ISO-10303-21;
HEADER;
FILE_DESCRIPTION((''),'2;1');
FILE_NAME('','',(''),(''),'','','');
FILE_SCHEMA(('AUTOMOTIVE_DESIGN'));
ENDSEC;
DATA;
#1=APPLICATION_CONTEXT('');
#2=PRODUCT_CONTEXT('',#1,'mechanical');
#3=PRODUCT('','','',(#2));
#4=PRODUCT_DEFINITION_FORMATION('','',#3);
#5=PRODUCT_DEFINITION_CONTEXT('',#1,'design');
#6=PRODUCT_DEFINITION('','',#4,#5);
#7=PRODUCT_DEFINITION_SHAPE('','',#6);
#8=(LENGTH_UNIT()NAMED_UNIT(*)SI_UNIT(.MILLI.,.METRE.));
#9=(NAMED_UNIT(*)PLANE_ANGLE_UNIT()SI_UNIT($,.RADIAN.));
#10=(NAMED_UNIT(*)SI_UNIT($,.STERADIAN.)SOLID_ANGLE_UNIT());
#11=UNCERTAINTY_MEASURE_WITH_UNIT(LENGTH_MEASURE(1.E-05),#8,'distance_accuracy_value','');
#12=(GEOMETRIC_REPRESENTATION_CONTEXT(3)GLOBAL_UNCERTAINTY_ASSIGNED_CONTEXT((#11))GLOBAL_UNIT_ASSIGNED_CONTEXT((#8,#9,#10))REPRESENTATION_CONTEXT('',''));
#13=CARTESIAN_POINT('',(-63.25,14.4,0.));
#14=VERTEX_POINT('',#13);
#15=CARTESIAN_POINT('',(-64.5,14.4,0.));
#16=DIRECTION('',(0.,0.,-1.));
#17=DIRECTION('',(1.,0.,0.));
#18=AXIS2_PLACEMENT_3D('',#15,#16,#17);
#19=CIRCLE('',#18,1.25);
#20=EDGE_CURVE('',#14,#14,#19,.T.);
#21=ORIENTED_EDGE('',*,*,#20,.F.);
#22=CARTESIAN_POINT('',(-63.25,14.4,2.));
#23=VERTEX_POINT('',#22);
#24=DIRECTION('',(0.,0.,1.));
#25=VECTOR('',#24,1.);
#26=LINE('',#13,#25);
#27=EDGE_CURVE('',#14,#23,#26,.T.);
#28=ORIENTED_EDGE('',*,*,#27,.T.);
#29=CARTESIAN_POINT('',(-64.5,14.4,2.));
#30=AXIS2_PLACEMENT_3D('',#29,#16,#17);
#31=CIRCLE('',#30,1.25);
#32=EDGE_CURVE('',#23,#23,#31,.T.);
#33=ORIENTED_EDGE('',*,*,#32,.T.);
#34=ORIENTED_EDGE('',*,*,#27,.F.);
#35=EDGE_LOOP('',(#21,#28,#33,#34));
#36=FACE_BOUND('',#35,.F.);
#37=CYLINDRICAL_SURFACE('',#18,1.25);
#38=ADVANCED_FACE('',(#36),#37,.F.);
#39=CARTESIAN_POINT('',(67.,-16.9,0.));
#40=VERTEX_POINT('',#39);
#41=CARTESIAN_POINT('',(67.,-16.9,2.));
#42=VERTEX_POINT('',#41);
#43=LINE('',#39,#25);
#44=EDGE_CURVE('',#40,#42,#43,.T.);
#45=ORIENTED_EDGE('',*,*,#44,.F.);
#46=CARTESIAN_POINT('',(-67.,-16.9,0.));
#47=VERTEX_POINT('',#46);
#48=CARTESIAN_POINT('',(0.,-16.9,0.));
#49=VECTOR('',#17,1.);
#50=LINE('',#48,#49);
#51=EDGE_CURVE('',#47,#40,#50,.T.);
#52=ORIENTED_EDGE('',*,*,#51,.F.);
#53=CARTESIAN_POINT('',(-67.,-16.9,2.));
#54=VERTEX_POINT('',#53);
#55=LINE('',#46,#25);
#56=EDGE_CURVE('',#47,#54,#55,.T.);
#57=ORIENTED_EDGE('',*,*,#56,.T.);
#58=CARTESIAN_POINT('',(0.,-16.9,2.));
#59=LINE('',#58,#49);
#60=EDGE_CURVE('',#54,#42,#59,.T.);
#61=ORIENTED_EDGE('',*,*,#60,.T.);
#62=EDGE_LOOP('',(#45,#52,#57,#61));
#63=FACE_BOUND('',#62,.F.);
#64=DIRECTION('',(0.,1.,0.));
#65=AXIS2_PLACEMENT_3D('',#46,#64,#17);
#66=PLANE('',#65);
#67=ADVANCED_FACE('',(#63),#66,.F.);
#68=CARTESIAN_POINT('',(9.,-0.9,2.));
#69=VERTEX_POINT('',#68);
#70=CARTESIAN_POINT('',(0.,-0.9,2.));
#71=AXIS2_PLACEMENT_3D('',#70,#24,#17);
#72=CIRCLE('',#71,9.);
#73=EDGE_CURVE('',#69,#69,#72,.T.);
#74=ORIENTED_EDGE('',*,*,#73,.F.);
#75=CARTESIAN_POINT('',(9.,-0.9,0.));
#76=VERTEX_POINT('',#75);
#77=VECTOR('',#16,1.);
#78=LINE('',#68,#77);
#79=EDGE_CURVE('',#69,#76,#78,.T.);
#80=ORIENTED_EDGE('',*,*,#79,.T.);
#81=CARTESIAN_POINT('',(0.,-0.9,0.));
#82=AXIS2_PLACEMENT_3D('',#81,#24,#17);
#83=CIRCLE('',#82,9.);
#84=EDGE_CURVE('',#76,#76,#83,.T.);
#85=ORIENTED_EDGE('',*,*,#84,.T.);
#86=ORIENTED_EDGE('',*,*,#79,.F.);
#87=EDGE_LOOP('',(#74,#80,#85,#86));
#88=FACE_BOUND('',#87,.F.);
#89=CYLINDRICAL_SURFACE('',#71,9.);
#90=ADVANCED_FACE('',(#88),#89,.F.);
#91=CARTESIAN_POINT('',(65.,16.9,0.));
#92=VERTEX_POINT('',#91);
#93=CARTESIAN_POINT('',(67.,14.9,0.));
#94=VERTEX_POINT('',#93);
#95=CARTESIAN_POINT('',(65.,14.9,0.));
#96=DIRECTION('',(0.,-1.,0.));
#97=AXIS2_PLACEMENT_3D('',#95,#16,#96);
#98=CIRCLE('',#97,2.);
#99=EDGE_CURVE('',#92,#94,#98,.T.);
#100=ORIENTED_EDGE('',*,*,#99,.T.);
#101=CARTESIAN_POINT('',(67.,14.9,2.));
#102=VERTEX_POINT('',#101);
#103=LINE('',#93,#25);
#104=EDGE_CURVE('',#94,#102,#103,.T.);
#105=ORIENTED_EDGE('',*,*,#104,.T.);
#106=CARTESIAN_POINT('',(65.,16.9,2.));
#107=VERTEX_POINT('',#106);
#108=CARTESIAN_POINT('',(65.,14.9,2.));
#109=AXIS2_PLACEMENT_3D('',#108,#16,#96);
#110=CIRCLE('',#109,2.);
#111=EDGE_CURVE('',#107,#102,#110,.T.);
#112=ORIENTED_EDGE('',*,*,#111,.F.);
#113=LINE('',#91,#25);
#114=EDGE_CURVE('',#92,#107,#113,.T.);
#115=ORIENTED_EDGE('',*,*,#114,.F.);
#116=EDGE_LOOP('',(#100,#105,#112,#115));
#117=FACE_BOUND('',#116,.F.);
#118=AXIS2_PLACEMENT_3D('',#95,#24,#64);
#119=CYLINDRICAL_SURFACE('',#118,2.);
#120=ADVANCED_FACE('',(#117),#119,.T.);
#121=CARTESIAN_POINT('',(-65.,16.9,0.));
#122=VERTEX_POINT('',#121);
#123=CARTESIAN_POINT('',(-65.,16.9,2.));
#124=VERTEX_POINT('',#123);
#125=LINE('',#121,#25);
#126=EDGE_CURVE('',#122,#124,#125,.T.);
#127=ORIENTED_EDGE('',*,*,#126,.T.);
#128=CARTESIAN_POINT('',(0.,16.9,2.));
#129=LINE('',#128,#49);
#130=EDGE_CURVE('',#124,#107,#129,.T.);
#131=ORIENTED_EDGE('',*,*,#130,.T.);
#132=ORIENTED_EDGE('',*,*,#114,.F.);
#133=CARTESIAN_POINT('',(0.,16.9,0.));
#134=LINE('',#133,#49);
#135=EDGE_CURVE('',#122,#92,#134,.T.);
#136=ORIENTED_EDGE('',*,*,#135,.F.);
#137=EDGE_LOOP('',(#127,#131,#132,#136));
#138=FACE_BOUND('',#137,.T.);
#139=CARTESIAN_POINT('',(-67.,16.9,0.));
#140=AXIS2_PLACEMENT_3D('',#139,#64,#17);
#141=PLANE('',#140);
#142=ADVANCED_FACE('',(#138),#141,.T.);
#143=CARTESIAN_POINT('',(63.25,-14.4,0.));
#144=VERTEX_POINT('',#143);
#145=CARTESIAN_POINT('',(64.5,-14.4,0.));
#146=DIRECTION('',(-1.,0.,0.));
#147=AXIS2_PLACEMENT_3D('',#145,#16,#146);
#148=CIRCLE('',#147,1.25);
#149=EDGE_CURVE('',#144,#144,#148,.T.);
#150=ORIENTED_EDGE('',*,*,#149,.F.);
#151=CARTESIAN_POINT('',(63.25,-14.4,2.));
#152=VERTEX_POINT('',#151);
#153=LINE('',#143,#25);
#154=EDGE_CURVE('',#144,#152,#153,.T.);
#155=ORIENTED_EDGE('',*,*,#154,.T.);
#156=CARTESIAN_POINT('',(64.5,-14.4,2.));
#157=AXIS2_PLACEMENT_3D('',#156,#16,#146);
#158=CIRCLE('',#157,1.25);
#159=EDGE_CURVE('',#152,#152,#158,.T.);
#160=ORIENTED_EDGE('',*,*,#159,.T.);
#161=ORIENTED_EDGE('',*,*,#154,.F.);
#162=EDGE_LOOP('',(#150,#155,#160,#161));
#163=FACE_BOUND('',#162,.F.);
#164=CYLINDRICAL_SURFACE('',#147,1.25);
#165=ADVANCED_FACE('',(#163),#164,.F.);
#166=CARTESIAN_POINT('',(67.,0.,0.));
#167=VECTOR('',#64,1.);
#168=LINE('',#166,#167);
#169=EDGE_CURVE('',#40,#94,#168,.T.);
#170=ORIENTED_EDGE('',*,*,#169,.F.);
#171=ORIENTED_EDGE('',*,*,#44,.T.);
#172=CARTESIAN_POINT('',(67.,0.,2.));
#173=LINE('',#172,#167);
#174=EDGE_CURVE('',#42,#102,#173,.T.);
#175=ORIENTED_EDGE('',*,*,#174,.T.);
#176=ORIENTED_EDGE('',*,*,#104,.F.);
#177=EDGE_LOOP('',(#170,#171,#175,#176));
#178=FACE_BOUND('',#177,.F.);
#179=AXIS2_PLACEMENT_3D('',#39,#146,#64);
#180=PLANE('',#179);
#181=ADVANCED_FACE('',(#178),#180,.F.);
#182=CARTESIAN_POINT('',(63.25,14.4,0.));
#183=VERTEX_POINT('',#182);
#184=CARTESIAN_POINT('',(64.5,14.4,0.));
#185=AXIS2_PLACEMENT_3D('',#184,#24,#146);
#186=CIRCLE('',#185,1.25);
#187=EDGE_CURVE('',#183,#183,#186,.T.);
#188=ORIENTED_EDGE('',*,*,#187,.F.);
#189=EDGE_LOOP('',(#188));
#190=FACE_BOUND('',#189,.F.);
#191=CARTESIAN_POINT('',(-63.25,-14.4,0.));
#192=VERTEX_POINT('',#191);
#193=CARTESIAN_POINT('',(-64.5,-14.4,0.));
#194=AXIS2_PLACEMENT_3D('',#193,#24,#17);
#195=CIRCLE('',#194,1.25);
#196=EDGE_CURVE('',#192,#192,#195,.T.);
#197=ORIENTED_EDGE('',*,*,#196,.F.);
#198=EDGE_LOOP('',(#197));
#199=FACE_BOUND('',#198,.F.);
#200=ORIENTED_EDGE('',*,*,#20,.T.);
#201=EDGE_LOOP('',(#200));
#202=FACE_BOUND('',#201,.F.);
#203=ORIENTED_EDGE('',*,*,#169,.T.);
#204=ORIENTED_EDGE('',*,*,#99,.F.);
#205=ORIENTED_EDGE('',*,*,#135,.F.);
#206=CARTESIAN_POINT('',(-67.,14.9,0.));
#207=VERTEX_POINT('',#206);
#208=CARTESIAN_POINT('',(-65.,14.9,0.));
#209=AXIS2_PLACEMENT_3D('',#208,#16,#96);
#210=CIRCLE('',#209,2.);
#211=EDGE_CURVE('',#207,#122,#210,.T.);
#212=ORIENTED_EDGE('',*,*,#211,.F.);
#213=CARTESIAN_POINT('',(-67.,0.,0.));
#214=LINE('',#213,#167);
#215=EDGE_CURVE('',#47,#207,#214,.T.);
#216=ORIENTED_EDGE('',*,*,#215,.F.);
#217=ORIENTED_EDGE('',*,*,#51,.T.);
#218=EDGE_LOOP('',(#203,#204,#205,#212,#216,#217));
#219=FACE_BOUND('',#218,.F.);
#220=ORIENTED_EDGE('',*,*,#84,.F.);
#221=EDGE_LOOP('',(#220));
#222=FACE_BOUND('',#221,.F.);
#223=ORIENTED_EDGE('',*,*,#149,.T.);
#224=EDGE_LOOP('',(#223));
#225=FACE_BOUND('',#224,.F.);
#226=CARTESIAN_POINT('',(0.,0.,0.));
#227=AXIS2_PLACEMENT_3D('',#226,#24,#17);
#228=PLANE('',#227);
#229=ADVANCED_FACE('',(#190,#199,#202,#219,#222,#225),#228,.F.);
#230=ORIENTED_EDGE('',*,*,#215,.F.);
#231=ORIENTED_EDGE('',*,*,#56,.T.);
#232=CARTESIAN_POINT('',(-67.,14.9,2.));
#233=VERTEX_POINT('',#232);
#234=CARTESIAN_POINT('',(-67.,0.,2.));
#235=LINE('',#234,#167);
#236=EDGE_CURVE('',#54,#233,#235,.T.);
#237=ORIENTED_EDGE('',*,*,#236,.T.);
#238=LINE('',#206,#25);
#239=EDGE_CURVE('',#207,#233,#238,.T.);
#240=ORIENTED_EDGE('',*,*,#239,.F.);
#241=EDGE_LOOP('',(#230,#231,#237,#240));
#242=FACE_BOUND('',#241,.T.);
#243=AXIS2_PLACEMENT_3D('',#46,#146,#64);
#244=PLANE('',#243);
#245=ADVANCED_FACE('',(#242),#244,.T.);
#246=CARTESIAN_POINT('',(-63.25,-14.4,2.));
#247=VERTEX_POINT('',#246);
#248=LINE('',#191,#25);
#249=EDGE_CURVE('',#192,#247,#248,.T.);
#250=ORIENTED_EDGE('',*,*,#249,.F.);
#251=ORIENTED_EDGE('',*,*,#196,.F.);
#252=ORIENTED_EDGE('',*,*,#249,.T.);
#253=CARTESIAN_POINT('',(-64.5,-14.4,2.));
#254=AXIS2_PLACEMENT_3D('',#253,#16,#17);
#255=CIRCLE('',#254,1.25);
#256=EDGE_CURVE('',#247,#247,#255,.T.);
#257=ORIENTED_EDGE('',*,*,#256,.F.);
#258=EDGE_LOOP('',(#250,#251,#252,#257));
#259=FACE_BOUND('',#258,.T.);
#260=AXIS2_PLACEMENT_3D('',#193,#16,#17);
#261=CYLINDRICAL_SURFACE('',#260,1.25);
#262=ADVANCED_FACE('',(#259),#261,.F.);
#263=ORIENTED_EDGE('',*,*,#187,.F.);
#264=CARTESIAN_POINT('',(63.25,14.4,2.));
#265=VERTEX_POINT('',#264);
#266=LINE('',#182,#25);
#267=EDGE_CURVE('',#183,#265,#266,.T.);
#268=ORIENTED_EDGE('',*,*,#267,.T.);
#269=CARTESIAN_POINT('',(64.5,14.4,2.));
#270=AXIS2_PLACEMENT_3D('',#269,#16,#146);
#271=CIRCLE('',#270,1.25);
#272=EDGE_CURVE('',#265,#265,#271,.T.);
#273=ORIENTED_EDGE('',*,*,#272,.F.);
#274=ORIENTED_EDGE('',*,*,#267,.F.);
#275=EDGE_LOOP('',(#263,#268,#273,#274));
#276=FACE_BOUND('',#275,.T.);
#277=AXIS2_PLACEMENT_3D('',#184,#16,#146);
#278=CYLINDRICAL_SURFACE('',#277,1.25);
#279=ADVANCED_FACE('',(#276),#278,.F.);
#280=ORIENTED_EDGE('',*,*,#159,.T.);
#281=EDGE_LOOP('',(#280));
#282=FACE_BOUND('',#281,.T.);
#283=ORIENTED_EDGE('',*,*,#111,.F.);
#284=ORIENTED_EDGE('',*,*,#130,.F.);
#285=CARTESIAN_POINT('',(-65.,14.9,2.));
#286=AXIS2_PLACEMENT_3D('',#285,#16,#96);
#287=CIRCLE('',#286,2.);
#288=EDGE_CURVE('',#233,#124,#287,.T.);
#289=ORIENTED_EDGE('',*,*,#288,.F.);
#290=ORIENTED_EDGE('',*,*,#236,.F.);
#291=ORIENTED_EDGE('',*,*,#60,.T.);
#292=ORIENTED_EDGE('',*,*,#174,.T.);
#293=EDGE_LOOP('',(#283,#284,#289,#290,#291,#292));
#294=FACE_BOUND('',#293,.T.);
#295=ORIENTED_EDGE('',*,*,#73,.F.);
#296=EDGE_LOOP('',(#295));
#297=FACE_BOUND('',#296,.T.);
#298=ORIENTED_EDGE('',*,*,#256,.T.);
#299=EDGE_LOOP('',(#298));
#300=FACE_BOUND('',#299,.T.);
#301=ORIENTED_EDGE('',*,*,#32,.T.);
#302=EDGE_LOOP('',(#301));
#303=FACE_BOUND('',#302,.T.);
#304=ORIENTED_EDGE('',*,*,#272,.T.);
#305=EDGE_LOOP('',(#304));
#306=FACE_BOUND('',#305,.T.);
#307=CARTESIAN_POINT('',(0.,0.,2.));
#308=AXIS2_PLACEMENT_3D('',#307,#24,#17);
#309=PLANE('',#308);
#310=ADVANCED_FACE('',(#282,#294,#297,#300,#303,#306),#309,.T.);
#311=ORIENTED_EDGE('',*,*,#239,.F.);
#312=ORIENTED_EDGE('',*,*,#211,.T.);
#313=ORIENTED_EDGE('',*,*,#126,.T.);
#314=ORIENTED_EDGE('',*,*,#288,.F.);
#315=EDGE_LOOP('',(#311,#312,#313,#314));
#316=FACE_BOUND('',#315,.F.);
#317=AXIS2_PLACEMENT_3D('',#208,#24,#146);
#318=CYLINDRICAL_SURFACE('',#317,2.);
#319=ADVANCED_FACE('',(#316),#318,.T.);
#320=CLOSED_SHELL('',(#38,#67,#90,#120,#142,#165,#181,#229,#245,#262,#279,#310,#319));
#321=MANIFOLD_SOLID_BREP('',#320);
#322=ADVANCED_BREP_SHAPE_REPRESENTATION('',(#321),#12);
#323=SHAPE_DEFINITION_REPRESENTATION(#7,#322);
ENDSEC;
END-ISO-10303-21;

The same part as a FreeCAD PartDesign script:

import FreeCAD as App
import Part
import Sketcher

V = App.Vector
Q = App.Units.Quantity


def edges_at(feature, points):
    """Names of the edges that pass closest to the given points."""
    edges = feature.Shape.Edges
    near = lambda p: min(range(len(edges)), key=lambda i: edges[i].distToShape(Part.Vertex(*p))[0])
    return sorted({f"Edge{near(p) + 1}" for p in points})


def add_polygon(sketch, points):
    """Adds a closed chain of lines whose ends are joined by coincident constraints."""
    first, n = sketch.GeometryCount, len(points)
    for a, b in zip(points, points[1:] + points[:1]):
        sketch.addGeometry(Part.LineSegment(App.Vector(*a, 0), App.Vector(*b, 0)), False)
    for i in range(n):
        sketch.addConstraint(Sketcher.Constraint("Coincident", first + i, 2, first + (i + 1) % n, 1))

doc = App.newDocument("Part")
body = doc.addObject("PartDesign::Body", "Body")

# Sketch on XY plane
sketch1 = body.newObject("Sketcher::SketchObject", "Sketch")
sketch1.AttachmentSupport = (doc.getObject("XY_Plane"), [""])
sketch1.MapMode = "FlatFace"
add_polygon(sketch1, [(-67, 17), (-67, -17), (67, -17), (67, 17)])  # lines 0-3
sketch1.addConstraint(Sketcher.Constraint("Vertical", 0))
sketch1.addConstraint(Sketcher.Constraint("Horizontal", 1))
sketch1.addConstraint(Sketcher.Constraint("Vertical", 2))
sketch1.addConstraint(Sketcher.Constraint("Horizontal", 3))
sketch1.addConstraint(Sketcher.Constraint("Symmetric", 0, 2, 2, 2, -1, 1))
sketch1.addConstraint(Sketcher.Constraint("DistanceX", 1, 1, 1, 2, Q("134 mm")))
sketch1.addConstraint(Sketcher.Constraint("DistanceY", 0, 2, 0, 1, Q("33.8 mm")))
pad1 = body.newObject("PartDesign::Pad", "Pad")
pad1.Profile = sketch1
pad1.Length = 2

# Sketch on XY plane
sketch2 = body.newObject("Sketcher::SketchObject", "Sketch001")
sketch2.AttachmentSupport = (doc.getObject("XY_Plane"), [""])
sketch2.MapMode = "FlatFace"
sketch2.AttachmentOffset = App.Placement(V(0, 0, 2), App.Rotation())
sketch2.addGeometry(Part.Circle(V(0, -1, 0), V(0, 0, 1), 9), False)
sketch2.addConstraint(Sketcher.Constraint("PointOnObject", 0, 3, -2))
sketch2.addConstraint(Sketcher.Constraint("Diameter", 0, Q("18 mm")))
sketch2.addConstraint(Sketcher.Constraint("DistanceY", 0, 3, -1, 1, Q("0.9 mm")))
pocket1 = body.newObject("PartDesign::Pocket", "Pocket")
pocket1.Profile = sketch2
pocket1.Type = "ThroughAll"
doc.recompute()

fillet = body.newObject("PartDesign::Fillet", "Fillet")
fillet.Base = (pocket1, edges_at(pocket1, [(-67, 16.9, 1), (67, 16.9, 1)]))
fillet.Radius = 2

# Sketch on XY plane
sketch3 = body.newObject("Sketcher::SketchObject", "Sketch002")
sketch3.AttachmentSupport = (doc.getObject("XY_Plane"), [""])
sketch3.MapMode = "FlatFace"
sketch3.addGeometry(Part.Circle(V(-64.5, -14.4, 0), V(0, 0, 1), 1.2), False)
sketch3.addConstraint(Sketcher.Constraint("Diameter", 0, Q("2.5 mm")))
sketch3.addConstraint(Sketcher.Constraint("DistanceX", 0, 3, -1, 1, Q("64.5 mm")))
sketch3.addConstraint(Sketcher.Constraint("DistanceY", 0, 3, -1, 1, Q("14.4 mm")))
pocket2 = body.newObject("PartDesign::Pocket", "Pocket001")
pocket2.Profile = sketch3
pocket2.Type = "ThroughAll"
pocket2.Reversed = True
doc.recompute()

mirrored = body.newObject("PartDesign::Mirrored", "Mirrored")
mirrored.Originals = [pocket2]
mirrored.MirrorPlane = (doc.getObject("YZ_Plane"), [""])
body.Tip = mirrored
doc.recompute()

mirrored2 = body.newObject("PartDesign::Mirrored", "Mirrored001")
mirrored2.Originals = [pocket2]
mirrored2.MirrorPlane = (doc.getObject("XZ_Plane"), [""])
body.Tip = mirrored2
doc.recompute()

polarpattern = body.newObject("PartDesign::PolarPattern", "PolarPattern")
polarpattern.Originals = [pocket2]
polarpattern.Axis = (doc.getObject("Z_Axis"), [""])
polarpattern.Angle = 360
polarpattern.Occurrences = 2
body.Tip = polarpattern

doc.recompute()
